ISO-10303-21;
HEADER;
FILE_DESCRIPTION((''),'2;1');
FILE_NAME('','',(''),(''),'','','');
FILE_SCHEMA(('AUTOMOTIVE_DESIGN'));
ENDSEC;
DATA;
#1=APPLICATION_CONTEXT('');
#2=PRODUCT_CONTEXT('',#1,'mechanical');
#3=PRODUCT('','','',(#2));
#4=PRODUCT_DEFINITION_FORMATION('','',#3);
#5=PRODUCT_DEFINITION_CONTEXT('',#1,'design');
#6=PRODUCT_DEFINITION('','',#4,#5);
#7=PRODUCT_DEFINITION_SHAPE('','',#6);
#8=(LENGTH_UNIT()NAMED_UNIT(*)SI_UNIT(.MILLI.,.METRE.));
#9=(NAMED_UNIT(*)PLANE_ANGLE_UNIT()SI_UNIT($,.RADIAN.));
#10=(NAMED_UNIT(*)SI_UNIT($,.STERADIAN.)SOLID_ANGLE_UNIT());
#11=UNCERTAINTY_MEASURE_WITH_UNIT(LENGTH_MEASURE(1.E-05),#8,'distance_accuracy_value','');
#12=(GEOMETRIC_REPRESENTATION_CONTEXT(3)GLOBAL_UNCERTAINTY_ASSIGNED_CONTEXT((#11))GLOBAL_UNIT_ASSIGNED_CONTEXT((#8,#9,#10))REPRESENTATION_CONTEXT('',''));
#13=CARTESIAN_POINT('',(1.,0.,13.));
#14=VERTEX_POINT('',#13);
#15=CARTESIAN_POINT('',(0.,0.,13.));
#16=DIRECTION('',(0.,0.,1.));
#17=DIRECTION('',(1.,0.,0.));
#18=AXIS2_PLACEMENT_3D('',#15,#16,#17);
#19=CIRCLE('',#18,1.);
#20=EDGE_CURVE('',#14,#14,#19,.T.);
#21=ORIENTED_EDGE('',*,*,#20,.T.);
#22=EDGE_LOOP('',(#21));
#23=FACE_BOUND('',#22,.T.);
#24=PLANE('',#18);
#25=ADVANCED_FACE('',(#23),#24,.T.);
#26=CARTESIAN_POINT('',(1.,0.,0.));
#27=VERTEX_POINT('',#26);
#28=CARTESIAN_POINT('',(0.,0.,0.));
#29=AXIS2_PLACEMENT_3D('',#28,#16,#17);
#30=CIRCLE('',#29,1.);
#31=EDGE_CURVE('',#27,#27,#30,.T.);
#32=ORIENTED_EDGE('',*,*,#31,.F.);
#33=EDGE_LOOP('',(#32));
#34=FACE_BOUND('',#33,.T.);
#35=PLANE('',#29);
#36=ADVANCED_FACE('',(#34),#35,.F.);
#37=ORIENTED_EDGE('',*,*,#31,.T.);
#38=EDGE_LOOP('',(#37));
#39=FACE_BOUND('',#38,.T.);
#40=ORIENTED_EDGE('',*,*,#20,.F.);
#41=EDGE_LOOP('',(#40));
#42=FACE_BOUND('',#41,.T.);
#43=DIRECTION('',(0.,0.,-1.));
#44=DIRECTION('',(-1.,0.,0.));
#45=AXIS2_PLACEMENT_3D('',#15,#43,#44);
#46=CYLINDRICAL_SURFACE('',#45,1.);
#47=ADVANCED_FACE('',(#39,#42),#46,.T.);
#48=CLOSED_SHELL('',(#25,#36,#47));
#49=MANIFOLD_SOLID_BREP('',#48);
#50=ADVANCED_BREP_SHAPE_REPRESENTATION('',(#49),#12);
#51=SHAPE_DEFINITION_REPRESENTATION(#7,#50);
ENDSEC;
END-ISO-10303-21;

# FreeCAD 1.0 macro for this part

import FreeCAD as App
import Part
import Sketcher

V = App.Vector

doc = App.newDocument("Part")
body = doc.addObject("PartDesign::Body", "Body")

# Sketch on XY plane
sketch1 = body.newObject("Sketcher::SketchObject", "Sketch")
sketch1.AttachmentSupport = (doc.getObject("XY_Plane"), [""])
sketch1.MapMode = "FlatFace"
sketch1.addGeometry(Part.Circle(V(0, 0, 0), V(0, 0, 1), 1), False)
sketch1.addConstraint(Sketcher.Constraint("Coincident", 0, 3, -1, 1))
sketch1.addConstraint(Sketcher.Constraint("Diameter", 0, 2.0))
pad1 = body.newObject("PartDesign::Pad", "Pad")
pad1.Profile = sketch1
pad1.Length = 13

doc.recompute()
